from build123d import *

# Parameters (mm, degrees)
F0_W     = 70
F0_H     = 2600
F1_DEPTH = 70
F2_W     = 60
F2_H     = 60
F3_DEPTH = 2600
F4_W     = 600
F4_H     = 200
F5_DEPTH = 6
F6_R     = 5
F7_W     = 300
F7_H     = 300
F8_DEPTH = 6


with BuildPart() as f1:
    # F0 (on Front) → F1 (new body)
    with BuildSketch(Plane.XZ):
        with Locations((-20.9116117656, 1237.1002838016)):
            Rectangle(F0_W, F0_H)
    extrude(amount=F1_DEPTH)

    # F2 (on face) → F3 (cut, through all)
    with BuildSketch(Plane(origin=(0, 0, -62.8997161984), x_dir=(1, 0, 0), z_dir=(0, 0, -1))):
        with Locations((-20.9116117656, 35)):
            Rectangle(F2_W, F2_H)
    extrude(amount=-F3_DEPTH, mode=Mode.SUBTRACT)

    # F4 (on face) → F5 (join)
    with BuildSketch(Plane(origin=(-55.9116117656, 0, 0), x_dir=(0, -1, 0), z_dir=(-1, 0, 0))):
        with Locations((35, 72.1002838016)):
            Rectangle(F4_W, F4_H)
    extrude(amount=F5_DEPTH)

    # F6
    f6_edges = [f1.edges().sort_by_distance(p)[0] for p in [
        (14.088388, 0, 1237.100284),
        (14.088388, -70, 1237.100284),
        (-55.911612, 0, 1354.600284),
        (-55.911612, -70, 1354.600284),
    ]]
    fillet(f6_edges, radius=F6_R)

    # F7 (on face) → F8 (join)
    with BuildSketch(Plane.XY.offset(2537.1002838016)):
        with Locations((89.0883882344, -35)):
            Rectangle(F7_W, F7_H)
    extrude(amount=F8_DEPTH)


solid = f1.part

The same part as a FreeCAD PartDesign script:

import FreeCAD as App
import Part
import Sketcher


def edges_at(feature, points):
    """Names of the edges that pass closest to the given points."""
    edges = feature.Shape.Edges
    near = lambda p: min(range(len(edges)), key=lambda i: edges[i].distToShape(Part.Vertex(*p))[0])
    return sorted({f"Edge{near(p) + 1}" for p in points})


def add_polygon(sketch, points):
    """Adds a closed chain of lines whose ends are joined by coincident constraints."""
    first, n = sketch.GeometryCount, len(points)
    for a, b in zip(points, points[1:] + points[:1]):
        sketch.addGeometry(Part.LineSegment(App.Vector(*a, 0), App.Vector(*b, 0)), False)
    for i in range(n):
        sketch.addConstraint(Sketcher.Constraint("Coincident", first + i, 2, first + (i + 1) % n, 1))

doc = App.newDocument("Part")
params = doc.addObject("Spreadsheet::Sheet", "Params")
for row, (alias, value) in enumerate([
    ("sketch1_width", "70 mm"),
    ("sketch1_height", "2600 mm"),
    ("pad1_length", "70 mm"),
    ("sketch2_width", "60 mm"),
    ("sketch3_width", "600 mm"),
    ("sketch3_height", "200 mm"),
    ("pad2_length", "6 mm"),
    ("fillet_radius", "5 mm"),
    ("sketch4_width", "300 mm"),
    ("pad3_length", "6 mm"),
], start=1):
    params.set(f"A{row}", alias)
    params.set(f"B{row}", "=" + value)
    params.setAlias(f"B{row}", alias)

body = doc.addObject("PartDesign::Body", "Body")

# Sketch on XZ plane
sketch1 = body.newObject("Sketcher::SketchObject", "Sketch")
sketch1.AttachmentSupport = (doc.getObject("XZ_Plane"), [""])
sketch1.MapMode = "FlatFace"
add_polygon(sketch1, [(-56, 2537), (-56, -63), (14, -63), (14, 2537)])  # lines 0-3
sketch1.addConstraint(Sketcher.Constraint("Vertical", 0))
sketch1.addConstraint(Sketcher.Constraint("Horizontal", 1))
sketch1.addConstraint(Sketcher.Constraint("Vertical", 2))
sketch1.addConstraint(Sketcher.Constraint("Horizontal", 3))
sketch1.addConstraint(Sketcher.Constraint("DistanceX", 1, 1, 1, 2, 70.0))
sketch1.addConstraint(Sketcher.Constraint("DistanceY", 0, 2, 0, 1, 2600.0))
sketch1.addConstraint(Sketcher.Constraint("DistanceX", 0, 2, -1, 1, 55.911612))
sketch1.addConstraint(Sketcher.Constraint("DistanceY", 0, 2, -1, 1, 62.899716))
sketch1.setExpression("Constraints[8]", "Params.sketch1_width")
sketch1.setExpression("Constraints[9]", "Params.sketch1_height")
pad1 = body.newObject("PartDesign::Pad", "Pad")
pad1.Profile = sketch1
pad1.setExpression("Length", "Params.pad1_length")

# Sketch on XY plane
sketch2 = body.newObject("Sketcher::SketchObject", "Sketch001")
sketch2.AttachmentSupport = (doc.getObject("XY_Plane"), [""])
sketch2.MapMode = "FlatFace"
sketch2.AttachmentOffset = App.Placement(App.Vector(0, 0, -62.899716), App.Rotation())
add_polygon(sketch2, [(-51, -65), (-51, -5), (9, -5), (9, -65)])  # lines 0-3
sketch2.addConstraint(Sketcher.Constraint("Vertical", 0))
sketch2.addConstraint(Sketcher.Constraint("Horizontal", 1))
sketch2.addConstraint(Sketcher.Constraint("Vertical", 2))
sketch2.addConstraint(Sketcher.Constraint("Horizontal", 3))
sketch2.addConstraint(Sketcher.Constraint("Equal", 3, 0))
sketch2.addConstraint(Sketcher.Constraint("DistanceX", 1, 1, 1, 2, 60.0))
sketch2.addConstraint(Sketcher.Constraint("DistanceY", 0, 2, -1, 1, 5.0))
sketch2.addConstraint(Sketcher.Constraint("DistanceX", 0, 2, -1, 1, 50.911612))
sketch2.setExpression("Constraints[9]", "Params.sketch2_width")
pocket1 = body.newObject("PartDesign::Pocket", "Pocket")
pocket1.Profile = sketch2
pocket1.Type = "ThroughAll"
pocket1.Reversed = True

# Sketch on YZ plane
sketch3 = body.newObject("Sketcher::SketchObject", "Sketch002")
sketch3.AttachmentSupport = (doc.getObject("YZ_Plane"), [""])
sketch3.MapMode = "FlatFace"
sketch3.AttachmentOffset = App.Placement(App.Vector(0, 0, -55.911612), App.Rotation())
add_polygon(sketch3, [(265, 172), (265, -28), (-335, -28), (-335, 172)])  # lines 0-3
sketch3.addConstraint(Sketcher.Constraint("Vertical", 0))
sketch3.addConstraint(Sketcher.Constraint("Horizontal", 1))
sketch3.addConstraint(Sketcher.Constraint("Vertical", 2))
sketch3.addConstraint(Sketcher.Constraint("Horizontal", 3))
sketch3.addConstraint(Sketcher.Constraint("DistanceX", 1, 2, 1, 1, 600.0))
sketch3.addConstraint(Sketcher.Constraint("DistanceY", 0, 2, 0, 1, 200.0))
sketch3.addConstraint(Sketcher.Constraint("DistanceX", -1, 1, 0, 2, 265.0))
sketch3.addConstraint(Sketcher.Constraint("DistanceY", 0, 2, -1, 1, 27.899716))
sketch3.setExpression("Constraints[8]", "Params.sketch3_width")
sketch3.setExpression("Constraints[9]", "Params.sketch3_height")
pad2 = body.newObject("PartDesign::Pad", "Pad001")
pad2.Profile = sketch3
pad2.setExpression("Length", "Params.pad2_length")
pad2.Reversed = True
doc.recompute()

fillet = body.newObject("PartDesign::Fillet", "Fillet")
fillet.Base = (pad2, edges_at(pad2, [
    (14.088, 0, 1237.1),
    (14.088, -70, 1237.1),
    (-55.912, 0, 1354.6),
    (-55.912, -70, 1354.6),
]))
fillet.setExpression("Radius", "Params.fillet_radius")

# Sketch on XY plane
sketch4 = body.newObject("Sketcher::SketchObject", "Sketch003")
sketch4.AttachmentSupport = (doc.getObject("XY_Plane"), [""])
sketch4.MapMode = "FlatFace"
sketch4.AttachmentOffset = App.Placement(App.Vector(0, 0, 2537.100284), App.Rotation())
add_polygon(sketch4, [(-61, 115), (-61, -185), (239, -185), (239, 115)])  # lines 0-3
sketch4.addConstraint(Sketcher.Constraint("Vertical", 0))
sketch4.addConstraint(Sketcher.Constraint("Horizontal", 1))
sketch4.addConstraint(Sketcher.Constraint("Vertical", 2))
sketch4.addConstraint(Sketcher.Constraint("Horizontal", 3))
sketch4.addConstraint(Sketcher.Constraint("Equal", 3, 0))
sketch4.addConstraint(Sketcher.Constraint("DistanceX", 1, 1, 1, 2, 300.0))
sketch4.addConstraint(Sketcher.Constraint("DistanceY", 0, 2, -1, 1, 185.0))
sketch4.addConstraint(Sketcher.Constraint("DistanceX", 0, 2, -1, 1, 60.911612))
sketch4.setExpression("Constraints[9]", "Params.sketch4_width")
pad3 = body.newObject("PartDesign::Pad", "Pad002")
pad3.Profile = sketch4
pad3.setExpression("Length", "Params.pad3_length")

doc.recompute()
